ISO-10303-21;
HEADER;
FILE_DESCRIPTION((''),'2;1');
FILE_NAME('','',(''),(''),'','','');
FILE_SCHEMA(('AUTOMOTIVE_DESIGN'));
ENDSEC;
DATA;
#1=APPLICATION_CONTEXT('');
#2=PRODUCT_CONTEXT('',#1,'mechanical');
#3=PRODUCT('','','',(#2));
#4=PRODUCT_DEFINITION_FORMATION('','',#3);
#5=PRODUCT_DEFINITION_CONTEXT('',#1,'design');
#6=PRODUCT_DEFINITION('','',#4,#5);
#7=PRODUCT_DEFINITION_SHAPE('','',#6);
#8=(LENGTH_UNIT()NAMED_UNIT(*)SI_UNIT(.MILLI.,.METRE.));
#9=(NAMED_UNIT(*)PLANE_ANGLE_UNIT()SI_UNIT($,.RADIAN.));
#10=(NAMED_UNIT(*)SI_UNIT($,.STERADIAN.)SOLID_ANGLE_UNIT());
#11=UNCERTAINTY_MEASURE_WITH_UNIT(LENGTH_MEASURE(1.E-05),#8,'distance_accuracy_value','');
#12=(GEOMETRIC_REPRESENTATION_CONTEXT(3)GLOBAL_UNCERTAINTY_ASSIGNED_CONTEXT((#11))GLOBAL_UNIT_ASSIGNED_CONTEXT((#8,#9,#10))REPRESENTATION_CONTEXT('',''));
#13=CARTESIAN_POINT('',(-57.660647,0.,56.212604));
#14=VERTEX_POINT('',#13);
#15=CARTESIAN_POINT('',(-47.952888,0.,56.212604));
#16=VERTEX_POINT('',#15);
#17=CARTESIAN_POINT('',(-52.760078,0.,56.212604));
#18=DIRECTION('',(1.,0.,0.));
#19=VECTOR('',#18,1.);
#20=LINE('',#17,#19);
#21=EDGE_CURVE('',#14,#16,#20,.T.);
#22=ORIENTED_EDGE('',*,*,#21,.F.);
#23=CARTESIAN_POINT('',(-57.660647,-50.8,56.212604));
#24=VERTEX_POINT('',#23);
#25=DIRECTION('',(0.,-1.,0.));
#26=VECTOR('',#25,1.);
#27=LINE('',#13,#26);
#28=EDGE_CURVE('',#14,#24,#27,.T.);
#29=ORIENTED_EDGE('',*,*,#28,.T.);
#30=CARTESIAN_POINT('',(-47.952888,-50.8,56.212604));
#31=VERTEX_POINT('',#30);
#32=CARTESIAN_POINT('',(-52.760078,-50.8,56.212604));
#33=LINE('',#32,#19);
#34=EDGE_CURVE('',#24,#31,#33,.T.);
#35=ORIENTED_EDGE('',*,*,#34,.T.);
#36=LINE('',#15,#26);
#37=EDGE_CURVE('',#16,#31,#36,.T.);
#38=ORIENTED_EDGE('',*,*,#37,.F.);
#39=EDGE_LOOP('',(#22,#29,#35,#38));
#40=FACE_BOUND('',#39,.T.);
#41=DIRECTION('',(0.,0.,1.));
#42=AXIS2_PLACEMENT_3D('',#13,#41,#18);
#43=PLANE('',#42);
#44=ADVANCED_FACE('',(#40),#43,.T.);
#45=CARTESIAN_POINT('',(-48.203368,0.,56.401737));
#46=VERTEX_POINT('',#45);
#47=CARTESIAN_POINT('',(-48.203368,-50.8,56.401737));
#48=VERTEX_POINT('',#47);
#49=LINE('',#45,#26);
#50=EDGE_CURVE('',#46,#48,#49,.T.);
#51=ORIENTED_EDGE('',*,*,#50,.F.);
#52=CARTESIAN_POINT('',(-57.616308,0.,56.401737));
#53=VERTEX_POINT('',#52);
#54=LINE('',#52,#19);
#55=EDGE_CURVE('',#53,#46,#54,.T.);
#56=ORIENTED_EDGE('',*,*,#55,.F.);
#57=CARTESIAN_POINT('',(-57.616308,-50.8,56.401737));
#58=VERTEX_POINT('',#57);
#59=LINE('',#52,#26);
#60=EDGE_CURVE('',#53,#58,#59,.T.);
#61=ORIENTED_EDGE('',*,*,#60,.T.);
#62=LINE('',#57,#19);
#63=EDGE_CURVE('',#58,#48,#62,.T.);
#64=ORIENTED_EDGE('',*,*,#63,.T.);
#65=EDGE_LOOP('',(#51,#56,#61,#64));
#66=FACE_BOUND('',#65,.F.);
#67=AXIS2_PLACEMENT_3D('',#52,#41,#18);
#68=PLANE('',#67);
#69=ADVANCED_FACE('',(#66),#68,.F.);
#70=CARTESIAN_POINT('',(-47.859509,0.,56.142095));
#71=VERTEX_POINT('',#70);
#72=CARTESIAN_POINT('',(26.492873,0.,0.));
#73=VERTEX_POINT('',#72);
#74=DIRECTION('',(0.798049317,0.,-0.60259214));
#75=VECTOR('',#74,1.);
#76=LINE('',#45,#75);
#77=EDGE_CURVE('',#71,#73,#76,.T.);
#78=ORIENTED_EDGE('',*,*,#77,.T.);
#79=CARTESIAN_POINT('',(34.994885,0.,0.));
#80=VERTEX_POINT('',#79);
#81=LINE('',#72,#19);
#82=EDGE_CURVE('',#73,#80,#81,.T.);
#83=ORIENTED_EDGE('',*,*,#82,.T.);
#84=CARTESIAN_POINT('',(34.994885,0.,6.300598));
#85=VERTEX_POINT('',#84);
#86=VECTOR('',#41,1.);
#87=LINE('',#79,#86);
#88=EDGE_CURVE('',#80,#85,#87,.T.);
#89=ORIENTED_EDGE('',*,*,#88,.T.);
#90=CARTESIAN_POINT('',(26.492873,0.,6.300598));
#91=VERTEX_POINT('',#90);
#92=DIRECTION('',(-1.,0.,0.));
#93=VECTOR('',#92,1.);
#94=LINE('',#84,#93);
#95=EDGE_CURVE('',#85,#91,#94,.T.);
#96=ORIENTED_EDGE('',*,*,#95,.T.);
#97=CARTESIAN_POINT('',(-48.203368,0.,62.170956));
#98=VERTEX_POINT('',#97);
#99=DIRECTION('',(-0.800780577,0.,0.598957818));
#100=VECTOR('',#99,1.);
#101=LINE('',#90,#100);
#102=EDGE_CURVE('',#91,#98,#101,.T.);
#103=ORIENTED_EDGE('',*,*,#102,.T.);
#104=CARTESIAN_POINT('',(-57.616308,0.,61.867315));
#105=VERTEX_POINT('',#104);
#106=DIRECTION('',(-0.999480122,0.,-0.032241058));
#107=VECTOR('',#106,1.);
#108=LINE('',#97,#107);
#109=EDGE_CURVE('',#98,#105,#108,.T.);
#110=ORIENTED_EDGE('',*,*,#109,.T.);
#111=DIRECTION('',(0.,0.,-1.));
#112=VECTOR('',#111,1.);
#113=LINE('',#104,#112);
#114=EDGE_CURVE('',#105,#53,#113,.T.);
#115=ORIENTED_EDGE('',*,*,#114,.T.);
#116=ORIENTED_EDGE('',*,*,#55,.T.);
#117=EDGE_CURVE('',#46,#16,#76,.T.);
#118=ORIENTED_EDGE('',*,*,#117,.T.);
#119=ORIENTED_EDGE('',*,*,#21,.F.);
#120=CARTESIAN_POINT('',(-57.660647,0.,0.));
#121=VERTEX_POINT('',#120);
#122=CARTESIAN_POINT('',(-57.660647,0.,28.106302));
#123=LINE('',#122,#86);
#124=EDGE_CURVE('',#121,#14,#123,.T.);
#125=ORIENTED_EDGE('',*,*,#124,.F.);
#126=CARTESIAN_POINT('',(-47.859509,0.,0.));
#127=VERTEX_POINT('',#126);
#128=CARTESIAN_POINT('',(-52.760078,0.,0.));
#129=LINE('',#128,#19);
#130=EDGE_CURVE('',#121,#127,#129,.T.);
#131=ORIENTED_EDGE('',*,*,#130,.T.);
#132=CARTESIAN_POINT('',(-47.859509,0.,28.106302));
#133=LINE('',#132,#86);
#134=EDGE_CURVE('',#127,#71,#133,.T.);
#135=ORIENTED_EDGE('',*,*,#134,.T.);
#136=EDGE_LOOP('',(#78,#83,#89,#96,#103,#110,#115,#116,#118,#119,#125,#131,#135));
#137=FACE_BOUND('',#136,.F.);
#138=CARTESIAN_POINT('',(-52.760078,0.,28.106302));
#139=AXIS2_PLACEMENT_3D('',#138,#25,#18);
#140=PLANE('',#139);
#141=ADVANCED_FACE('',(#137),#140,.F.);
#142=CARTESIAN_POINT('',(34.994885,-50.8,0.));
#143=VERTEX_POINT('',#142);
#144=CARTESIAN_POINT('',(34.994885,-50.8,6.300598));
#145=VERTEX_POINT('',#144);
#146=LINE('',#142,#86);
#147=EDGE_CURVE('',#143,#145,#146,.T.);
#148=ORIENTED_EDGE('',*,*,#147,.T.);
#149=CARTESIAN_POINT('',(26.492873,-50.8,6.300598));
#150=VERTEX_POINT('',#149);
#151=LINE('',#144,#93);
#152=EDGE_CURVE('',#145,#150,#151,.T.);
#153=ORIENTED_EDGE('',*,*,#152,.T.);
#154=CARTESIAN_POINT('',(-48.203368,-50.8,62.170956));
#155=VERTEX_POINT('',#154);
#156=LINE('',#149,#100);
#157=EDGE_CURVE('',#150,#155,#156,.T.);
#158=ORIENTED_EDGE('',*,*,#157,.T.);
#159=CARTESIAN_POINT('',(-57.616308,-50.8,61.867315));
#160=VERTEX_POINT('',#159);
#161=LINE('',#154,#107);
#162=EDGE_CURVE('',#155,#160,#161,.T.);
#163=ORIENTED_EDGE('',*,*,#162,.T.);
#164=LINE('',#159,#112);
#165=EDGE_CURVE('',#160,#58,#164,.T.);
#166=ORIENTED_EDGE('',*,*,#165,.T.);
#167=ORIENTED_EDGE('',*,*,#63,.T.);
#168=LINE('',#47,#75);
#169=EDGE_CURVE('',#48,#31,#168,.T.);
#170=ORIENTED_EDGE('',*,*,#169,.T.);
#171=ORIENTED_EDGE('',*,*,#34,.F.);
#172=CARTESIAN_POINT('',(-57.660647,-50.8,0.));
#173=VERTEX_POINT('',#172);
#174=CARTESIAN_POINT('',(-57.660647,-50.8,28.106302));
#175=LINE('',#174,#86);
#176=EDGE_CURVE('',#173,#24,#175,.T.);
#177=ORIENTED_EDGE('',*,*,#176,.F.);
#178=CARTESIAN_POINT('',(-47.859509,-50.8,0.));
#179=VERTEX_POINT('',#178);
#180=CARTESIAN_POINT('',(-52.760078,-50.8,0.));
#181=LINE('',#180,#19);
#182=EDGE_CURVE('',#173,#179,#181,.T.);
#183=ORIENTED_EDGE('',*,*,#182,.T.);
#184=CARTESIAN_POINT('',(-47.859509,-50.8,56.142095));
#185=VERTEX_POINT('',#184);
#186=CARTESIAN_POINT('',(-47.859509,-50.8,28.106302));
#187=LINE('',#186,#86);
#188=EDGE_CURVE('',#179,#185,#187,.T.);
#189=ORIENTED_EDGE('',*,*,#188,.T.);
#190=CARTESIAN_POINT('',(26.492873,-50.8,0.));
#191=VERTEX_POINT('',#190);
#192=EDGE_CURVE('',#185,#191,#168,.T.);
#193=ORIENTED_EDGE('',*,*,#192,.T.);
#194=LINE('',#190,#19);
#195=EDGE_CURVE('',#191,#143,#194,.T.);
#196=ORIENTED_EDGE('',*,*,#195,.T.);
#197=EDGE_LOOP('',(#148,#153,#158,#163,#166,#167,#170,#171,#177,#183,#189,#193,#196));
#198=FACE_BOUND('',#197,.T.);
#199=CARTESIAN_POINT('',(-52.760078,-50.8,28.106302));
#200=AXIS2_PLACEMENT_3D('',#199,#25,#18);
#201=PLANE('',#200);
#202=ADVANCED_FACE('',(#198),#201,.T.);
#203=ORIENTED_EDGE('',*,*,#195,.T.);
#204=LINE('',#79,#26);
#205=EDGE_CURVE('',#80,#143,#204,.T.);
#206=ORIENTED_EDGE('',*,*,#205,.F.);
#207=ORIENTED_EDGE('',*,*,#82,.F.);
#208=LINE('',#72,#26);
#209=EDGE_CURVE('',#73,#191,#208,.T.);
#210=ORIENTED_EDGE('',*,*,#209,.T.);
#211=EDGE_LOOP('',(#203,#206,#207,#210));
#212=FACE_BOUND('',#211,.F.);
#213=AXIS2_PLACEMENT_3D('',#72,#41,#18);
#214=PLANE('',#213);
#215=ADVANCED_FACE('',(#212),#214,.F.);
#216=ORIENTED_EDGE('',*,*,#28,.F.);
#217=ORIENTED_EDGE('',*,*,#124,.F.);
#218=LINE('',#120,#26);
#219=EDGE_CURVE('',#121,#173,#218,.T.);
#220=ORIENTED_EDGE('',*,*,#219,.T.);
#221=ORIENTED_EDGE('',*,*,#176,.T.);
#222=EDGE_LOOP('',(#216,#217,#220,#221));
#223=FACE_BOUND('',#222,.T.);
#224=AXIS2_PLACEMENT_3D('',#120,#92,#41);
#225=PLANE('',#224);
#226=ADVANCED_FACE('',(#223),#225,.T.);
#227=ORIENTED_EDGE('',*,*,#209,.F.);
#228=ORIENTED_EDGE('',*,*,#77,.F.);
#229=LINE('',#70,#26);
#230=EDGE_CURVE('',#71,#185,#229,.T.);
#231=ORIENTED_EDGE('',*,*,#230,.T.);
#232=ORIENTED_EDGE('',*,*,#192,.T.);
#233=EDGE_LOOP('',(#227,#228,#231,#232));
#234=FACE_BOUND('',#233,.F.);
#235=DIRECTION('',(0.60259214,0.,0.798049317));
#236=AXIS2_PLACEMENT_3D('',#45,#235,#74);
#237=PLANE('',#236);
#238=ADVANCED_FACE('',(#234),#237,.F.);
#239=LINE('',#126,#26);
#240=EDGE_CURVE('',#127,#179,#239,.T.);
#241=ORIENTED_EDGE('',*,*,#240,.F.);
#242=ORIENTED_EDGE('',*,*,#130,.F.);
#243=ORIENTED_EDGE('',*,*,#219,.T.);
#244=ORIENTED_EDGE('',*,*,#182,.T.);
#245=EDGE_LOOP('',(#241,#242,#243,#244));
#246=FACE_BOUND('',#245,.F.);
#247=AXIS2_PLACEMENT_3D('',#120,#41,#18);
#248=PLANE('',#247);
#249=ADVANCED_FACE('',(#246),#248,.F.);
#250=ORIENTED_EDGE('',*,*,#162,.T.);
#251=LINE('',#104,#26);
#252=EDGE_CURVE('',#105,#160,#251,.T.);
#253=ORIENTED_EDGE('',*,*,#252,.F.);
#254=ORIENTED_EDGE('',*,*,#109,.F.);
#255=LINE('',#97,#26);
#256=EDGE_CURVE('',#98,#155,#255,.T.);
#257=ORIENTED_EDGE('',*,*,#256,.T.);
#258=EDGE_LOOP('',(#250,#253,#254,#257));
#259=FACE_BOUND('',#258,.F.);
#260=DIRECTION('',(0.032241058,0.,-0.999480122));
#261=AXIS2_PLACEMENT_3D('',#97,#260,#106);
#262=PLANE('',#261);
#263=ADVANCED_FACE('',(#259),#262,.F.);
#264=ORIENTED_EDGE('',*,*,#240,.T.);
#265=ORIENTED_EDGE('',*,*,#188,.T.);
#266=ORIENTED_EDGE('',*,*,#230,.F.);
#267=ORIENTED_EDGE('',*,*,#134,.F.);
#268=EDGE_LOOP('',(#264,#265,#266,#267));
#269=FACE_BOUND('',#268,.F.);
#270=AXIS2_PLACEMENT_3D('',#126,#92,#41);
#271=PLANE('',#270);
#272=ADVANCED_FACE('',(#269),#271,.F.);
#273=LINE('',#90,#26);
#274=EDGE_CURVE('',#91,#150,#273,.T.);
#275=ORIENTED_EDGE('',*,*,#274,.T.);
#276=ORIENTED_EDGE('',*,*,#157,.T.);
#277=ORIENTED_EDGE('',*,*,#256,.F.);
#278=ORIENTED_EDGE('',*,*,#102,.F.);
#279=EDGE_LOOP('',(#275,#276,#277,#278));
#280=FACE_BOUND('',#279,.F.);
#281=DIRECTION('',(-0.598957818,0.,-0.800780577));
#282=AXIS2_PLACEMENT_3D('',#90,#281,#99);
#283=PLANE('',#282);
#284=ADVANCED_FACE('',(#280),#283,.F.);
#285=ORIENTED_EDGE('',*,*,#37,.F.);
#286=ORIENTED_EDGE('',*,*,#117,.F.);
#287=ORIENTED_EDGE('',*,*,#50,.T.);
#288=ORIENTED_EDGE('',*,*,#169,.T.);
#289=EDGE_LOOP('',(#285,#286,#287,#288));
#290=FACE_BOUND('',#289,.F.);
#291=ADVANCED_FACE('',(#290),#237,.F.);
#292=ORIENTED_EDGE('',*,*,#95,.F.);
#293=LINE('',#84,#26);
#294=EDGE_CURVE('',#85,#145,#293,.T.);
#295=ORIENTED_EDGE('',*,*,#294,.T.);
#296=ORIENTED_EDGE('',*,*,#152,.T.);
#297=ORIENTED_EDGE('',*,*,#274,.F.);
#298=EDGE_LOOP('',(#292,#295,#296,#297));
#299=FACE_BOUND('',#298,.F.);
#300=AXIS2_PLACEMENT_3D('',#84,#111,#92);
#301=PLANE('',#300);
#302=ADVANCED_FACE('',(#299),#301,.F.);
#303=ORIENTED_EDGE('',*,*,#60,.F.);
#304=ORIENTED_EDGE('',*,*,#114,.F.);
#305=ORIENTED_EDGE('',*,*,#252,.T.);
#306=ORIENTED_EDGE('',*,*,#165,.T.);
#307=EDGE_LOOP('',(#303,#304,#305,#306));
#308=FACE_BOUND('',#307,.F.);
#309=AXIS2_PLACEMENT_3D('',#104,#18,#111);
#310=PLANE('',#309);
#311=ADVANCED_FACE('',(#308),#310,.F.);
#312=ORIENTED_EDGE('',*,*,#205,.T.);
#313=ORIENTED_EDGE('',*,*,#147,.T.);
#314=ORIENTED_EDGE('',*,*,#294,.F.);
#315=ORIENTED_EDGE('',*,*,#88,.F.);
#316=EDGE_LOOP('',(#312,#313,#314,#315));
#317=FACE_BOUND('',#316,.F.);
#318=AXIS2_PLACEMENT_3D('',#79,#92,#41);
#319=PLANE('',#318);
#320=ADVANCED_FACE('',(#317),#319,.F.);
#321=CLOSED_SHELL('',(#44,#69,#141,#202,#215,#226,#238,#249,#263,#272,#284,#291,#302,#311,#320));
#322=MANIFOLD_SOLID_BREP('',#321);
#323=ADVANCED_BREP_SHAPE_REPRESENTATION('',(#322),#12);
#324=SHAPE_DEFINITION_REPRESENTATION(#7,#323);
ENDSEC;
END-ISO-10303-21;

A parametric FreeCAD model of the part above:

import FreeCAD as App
import Part
import Sketcher

V = App.Vector
Q = App.Units.Quantity


def add_polygon(sketch, points):
    """Adds a closed chain of lines whose ends are joined by coincident constraints."""
    first, n = sketch.GeometryCount, len(points)
    for a, b in zip(points, points[1:] + points[:1]):
        sketch.addGeometry(Part.LineSegment(App.Vector(*a, 0), App.Vector(*b, 0)), False)
    for i in range(n):
        sketch.addConstraint(Sketcher.Constraint("Coincident", first + i, 2, first + (i + 1) % n, 1))

doc = App.newDocument("Part")
body = doc.addObject("PartDesign::Body", "Body")

sketch1 = doc.addObject("Sketcher::SketchObject", "Sketch")
body.addObject(sketch1)
sketch1.AttachmentSupport = (doc.XZ_Plane, [""])
sketch1.MapMode = "FlatFace"
add_polygon(sketch1, [(-48.203368, 62.170956), (-57.616308, 61.867315), (-57.616308, 56.401737), (-48.203368, 56.401737), (26.492873, 0), (34.994885, 0), (34.994885, 6.300598), (26.492873, 6.300598)])
sketch1.addConstraint([
    Sketcher.Constraint("Vertical", 1),
    Sketcher.Constraint("Horizontal", 2),
    Sketcher.Constraint("Horizontal", 4),
    Sketcher.Constraint("Vertical", 5),
    Sketcher.Constraint("Horizontal", 6),
    Sketcher.Constraint("PointOnObject", 3, 2, -1),
    Sketcher.Constraint("Vertical", 3, 2, 6, 2),
    Sketcher.Constraint("Vertical", 2, 2, 7, 2),
    Sketcher.Constraint("DistanceX", 2, 1, 2, 2, 9.41294),
    Sketcher.Constraint("DistanceX", 4, 1, 4, 2, 8.502012),
    Sketcher.Constraint("DistanceY", 1, 2, 1, 1, 5.465578),
    Sketcher.Constraint("DistanceY", 5, 1, 5, 2, 6.300598),
    Sketcher.Constraint("DistanceX", 2, 2, 3, 2, 74.696241),
    Sketcher.Constraint("DistanceY", 5, 2, 2, 2, 50.101139),
    Sketcher.Constraint("DistanceY", 2, 2, 7, 2, 5.769219),
    Sketcher.Constraint("DistanceX", 0, 2, -1, 1, 57.616308),
])
pad1 = doc.addObject("PartDesign::Pad", "Pad")
body.addObject(pad1)
pad1.Profile = sketch1
pad1.Length = Q("2 in")

sketch2 = doc.addObject("Sketcher::SketchObject", "Sketch001")
body.addObject(sketch2)
sketch2.AttachmentSupport = (doc.XZ_Plane, [""])
sketch2.MapMode = "FlatFace"
add_polygon(sketch2, [(-57.660647, 56.212604), (-57.660647, 0), (-47.859509, 0), (-47.859509, 56.212604)])
sketch2.addConstraint([
    Sketcher.Constraint("Vertical", 0),
    Sketcher.Constraint("Horizontal", 1),
    Sketcher.Constraint("Vertical", 2),
    Sketcher.Constraint("Horizontal", 3),
    Sketcher.Constraint("PointOnObject", 0, 2, -1),
    Sketcher.Constraint("DistanceX", 1, 1, 1, 2, 9.801138),
    Sketcher.Constraint("DistanceY", 0, 2, 0, 1, 56.212604),
    Sketcher.Constraint("DistanceX", 1, 2, -1, 1, 47.859509),
])
pad2 = doc.addObject("PartDesign::Pad", "Pad001")
body.addObject(pad2)
pad2.Profile = sketch2
pad2.Length = Q("2 in")

doc.recompute()
